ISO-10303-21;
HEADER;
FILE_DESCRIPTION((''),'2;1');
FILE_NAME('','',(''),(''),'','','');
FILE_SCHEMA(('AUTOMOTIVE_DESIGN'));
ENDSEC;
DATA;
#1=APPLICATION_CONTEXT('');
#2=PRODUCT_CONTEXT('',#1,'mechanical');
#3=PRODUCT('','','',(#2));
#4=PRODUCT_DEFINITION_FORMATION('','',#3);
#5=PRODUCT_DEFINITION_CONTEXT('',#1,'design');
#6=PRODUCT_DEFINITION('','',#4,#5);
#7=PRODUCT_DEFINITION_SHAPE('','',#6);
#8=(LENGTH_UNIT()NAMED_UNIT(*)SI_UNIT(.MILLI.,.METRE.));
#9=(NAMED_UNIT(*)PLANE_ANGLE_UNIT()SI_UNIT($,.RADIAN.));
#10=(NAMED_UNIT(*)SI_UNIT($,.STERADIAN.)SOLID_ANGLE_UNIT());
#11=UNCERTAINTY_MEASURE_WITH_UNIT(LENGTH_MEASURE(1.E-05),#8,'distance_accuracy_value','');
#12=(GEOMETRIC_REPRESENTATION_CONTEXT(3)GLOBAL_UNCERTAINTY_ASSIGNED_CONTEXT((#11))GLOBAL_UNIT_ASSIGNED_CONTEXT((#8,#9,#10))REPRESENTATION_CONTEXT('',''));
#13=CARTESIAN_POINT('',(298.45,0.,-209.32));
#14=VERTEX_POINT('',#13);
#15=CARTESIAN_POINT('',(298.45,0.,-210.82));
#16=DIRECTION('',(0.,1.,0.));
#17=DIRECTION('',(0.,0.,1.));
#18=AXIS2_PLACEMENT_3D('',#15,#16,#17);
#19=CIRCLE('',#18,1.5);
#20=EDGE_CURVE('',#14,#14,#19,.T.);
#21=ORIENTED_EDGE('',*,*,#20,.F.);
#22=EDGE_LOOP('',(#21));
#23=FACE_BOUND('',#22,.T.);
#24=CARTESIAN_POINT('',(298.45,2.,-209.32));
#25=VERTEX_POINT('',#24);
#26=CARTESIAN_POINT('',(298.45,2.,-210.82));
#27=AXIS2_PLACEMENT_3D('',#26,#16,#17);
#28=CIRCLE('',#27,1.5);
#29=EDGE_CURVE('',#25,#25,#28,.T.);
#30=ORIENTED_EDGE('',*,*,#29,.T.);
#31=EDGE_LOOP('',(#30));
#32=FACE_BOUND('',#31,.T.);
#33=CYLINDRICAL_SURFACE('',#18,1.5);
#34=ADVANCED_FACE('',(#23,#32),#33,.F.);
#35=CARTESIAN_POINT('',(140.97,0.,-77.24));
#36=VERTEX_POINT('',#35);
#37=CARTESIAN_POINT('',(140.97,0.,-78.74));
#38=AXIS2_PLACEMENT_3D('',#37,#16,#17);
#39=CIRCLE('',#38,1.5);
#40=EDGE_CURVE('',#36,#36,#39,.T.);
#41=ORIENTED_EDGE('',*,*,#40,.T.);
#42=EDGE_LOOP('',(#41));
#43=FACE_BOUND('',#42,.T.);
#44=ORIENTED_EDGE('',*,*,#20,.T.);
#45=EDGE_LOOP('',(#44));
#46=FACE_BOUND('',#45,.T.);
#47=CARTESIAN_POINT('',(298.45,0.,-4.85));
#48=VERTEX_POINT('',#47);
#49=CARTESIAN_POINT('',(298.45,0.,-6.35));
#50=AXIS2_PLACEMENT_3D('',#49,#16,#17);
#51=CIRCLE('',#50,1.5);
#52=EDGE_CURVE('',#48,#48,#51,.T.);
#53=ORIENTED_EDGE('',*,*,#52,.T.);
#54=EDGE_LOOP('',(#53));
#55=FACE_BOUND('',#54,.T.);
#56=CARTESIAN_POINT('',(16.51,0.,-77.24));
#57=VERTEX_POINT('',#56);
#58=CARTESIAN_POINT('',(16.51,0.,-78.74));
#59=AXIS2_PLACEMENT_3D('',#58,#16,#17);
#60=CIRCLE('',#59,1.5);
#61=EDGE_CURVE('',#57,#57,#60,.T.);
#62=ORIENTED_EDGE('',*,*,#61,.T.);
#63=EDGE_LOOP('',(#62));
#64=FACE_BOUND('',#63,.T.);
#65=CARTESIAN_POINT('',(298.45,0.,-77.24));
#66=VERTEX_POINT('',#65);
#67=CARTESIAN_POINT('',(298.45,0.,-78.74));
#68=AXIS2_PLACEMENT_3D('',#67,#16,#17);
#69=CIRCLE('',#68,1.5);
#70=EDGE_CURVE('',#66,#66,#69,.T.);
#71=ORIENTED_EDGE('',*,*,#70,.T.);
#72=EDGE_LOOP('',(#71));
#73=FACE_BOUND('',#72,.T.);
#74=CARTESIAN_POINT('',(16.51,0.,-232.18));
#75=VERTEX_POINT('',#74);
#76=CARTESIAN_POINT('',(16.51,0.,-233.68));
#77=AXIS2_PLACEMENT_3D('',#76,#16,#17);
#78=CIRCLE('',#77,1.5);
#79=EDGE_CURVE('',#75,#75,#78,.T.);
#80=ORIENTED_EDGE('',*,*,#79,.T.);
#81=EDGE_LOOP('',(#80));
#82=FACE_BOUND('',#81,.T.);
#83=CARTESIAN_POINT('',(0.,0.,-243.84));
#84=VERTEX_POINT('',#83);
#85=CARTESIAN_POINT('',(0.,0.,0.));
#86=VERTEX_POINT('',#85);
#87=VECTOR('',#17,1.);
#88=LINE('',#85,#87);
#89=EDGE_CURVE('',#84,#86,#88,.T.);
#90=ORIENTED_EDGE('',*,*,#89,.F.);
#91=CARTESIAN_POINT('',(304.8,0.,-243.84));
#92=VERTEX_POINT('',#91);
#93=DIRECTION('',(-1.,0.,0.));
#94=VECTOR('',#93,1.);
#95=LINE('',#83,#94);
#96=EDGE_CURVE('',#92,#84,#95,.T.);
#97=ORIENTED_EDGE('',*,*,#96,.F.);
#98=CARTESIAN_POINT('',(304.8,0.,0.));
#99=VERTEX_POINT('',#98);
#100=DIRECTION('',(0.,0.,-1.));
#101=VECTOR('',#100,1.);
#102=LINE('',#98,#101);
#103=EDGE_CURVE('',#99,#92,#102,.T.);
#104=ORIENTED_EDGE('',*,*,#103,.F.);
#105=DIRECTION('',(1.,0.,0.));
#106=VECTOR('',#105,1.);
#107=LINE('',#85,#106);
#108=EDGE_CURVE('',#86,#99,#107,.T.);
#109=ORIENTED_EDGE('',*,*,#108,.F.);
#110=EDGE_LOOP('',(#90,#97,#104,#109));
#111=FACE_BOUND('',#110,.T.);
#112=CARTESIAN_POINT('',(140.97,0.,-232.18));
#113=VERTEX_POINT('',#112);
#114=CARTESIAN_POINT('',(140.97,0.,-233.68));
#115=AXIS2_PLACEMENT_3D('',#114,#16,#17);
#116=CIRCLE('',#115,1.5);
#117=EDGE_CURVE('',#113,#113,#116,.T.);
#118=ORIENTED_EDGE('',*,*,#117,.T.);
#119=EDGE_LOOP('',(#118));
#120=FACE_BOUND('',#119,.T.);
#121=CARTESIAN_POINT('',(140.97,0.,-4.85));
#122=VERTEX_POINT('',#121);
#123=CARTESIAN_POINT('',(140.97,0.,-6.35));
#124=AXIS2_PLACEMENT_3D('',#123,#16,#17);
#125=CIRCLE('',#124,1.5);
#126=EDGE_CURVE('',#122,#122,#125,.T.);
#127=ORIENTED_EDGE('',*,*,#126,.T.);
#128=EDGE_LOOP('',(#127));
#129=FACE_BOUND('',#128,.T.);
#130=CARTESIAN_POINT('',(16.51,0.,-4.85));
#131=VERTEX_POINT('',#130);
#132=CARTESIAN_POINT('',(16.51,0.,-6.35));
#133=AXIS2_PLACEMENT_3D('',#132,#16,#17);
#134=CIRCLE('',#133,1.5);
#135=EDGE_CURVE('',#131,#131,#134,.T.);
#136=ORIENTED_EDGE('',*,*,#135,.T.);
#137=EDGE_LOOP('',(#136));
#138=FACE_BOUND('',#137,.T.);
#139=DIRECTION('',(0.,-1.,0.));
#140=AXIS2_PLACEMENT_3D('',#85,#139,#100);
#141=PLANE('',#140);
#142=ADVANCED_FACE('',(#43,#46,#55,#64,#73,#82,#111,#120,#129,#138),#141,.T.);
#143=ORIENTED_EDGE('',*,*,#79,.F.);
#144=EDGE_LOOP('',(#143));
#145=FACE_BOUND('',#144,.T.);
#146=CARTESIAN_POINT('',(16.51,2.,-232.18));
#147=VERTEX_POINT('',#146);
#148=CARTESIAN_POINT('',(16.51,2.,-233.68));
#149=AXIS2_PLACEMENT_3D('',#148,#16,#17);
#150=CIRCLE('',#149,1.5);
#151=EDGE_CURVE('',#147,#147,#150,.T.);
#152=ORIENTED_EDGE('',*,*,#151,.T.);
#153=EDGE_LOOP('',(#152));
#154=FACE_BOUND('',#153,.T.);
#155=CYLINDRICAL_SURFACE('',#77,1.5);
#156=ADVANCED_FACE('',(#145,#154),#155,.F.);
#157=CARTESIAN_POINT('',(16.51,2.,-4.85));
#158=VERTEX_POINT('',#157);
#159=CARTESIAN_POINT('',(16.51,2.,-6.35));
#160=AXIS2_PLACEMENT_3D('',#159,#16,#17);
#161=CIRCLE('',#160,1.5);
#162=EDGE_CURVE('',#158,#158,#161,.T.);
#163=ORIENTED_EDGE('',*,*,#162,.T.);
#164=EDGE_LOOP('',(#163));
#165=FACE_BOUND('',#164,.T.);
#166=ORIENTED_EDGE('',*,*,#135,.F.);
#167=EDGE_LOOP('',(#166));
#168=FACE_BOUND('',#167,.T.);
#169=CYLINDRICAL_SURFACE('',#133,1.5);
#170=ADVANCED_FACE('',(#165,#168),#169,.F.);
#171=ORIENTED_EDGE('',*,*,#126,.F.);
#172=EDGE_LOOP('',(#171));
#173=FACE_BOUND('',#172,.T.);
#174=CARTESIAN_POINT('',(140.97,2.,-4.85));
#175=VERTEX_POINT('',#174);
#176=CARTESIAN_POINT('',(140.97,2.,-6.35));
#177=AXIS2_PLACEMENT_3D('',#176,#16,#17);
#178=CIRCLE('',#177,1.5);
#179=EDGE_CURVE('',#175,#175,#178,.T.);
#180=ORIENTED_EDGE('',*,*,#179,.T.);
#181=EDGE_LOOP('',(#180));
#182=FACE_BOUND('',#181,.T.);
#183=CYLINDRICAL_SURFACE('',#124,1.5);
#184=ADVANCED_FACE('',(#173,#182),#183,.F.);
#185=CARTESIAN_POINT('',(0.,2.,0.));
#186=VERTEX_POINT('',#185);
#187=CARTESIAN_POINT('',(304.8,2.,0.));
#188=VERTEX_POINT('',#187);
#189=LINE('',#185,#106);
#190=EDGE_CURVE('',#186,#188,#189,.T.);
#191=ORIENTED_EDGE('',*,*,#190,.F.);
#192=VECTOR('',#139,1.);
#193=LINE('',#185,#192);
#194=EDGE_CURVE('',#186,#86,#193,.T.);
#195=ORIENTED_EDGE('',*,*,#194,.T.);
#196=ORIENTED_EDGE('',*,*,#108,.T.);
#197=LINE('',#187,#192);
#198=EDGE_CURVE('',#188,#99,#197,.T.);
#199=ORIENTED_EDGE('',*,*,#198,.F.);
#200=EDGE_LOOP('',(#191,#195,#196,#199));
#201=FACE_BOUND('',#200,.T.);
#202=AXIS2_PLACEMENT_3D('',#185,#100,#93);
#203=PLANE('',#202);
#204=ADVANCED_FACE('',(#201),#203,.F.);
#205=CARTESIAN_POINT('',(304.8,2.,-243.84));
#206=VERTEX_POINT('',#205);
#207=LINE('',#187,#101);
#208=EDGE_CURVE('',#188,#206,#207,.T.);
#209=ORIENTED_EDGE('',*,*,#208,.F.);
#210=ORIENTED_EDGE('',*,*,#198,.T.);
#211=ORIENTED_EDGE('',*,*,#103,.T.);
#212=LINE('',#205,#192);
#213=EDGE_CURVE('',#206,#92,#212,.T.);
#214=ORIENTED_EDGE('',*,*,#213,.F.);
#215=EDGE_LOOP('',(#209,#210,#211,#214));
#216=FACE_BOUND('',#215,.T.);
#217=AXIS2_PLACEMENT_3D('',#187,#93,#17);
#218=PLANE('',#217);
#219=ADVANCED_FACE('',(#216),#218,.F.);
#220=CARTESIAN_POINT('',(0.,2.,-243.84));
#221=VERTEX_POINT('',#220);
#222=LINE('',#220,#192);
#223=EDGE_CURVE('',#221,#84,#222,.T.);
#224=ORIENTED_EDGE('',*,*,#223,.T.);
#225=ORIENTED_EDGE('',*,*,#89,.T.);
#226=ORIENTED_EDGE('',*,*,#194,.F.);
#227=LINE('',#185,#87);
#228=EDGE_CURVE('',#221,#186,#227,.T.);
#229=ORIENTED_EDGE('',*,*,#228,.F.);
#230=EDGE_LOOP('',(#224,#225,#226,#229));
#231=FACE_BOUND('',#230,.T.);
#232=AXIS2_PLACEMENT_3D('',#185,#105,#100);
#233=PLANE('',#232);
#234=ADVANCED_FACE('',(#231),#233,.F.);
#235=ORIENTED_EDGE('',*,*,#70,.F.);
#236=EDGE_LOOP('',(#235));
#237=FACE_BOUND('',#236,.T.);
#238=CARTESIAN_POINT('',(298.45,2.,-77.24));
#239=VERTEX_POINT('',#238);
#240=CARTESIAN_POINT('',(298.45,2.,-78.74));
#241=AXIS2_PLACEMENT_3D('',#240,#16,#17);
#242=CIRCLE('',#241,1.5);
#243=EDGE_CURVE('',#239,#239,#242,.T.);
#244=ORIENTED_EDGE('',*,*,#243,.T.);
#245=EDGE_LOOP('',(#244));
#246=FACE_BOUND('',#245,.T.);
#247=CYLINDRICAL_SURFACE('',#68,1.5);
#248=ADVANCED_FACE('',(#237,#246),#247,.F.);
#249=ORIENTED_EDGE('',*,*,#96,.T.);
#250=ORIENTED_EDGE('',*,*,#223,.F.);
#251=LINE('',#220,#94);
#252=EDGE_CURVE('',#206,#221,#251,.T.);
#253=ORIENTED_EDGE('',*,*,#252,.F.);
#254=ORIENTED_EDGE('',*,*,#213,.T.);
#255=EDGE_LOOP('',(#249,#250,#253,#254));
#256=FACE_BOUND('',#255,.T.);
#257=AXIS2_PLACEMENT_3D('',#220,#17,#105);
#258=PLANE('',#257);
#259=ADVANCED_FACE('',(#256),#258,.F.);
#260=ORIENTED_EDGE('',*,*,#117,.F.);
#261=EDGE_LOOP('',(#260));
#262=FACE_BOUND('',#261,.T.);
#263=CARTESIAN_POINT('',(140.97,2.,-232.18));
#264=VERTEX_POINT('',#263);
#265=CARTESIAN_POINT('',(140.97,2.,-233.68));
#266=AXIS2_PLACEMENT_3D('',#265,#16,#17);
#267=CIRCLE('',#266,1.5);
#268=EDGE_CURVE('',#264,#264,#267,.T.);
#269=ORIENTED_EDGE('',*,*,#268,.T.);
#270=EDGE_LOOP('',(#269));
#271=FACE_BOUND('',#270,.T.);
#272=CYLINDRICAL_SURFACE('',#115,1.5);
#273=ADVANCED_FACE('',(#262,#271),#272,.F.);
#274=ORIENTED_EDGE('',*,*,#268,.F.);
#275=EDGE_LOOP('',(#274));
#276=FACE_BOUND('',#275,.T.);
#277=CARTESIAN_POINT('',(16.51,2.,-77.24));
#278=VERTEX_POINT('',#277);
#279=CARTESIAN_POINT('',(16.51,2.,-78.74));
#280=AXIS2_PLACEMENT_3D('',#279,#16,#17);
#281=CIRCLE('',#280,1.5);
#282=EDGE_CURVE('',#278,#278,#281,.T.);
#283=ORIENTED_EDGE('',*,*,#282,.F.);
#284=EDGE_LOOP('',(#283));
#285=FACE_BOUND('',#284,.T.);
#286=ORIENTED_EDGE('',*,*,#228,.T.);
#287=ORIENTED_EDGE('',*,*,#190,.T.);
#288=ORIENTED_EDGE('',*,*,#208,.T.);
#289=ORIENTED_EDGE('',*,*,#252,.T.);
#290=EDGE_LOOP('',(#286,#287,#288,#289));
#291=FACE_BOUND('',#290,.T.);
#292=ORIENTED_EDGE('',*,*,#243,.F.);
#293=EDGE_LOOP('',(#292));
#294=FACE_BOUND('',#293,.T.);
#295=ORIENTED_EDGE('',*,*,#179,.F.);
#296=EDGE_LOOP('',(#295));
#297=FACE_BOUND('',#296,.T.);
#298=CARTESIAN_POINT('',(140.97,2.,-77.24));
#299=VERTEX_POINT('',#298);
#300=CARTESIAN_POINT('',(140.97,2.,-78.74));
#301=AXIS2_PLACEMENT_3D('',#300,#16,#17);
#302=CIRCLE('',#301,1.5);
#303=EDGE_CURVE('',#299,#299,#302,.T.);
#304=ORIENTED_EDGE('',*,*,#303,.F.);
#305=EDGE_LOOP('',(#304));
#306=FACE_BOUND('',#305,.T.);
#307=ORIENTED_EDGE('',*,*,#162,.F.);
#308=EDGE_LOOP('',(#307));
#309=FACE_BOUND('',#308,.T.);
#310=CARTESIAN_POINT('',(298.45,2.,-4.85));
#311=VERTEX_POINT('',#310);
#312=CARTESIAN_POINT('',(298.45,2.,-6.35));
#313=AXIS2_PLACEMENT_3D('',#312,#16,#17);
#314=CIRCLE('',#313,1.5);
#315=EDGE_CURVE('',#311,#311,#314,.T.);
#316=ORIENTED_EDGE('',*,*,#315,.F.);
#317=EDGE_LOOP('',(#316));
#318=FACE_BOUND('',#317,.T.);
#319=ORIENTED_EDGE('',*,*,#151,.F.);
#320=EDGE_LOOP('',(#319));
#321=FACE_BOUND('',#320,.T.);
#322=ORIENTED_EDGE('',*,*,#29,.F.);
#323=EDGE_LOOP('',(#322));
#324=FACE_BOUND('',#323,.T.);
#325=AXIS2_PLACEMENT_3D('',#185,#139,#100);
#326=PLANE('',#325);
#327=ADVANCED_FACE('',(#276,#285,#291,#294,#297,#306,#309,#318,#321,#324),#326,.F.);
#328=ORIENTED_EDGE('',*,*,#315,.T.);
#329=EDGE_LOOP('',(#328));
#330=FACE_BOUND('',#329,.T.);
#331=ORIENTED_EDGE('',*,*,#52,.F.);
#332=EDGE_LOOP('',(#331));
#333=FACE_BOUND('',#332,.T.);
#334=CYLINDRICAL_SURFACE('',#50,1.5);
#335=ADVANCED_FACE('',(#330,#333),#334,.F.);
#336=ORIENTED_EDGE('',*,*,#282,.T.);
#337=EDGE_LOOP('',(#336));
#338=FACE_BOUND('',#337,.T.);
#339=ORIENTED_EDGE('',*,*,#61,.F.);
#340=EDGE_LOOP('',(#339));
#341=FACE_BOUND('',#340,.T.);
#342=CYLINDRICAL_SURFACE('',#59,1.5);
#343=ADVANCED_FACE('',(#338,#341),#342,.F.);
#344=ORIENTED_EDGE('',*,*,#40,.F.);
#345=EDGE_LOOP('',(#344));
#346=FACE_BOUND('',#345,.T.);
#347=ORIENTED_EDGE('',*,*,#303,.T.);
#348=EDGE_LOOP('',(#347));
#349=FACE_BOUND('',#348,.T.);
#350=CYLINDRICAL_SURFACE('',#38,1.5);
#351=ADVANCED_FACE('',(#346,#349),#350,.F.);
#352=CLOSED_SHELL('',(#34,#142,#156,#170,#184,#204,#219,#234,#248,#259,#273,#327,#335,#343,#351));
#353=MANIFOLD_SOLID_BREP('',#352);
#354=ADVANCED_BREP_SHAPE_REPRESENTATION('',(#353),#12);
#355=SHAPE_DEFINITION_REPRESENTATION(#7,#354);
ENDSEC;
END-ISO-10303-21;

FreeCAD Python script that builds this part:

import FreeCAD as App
import Part
import Sketcher

doc = App.newDocument("Part")
body = doc.addObject("PartDesign::Body", "Body")

sketch1 = body.newObject("Sketcher::SketchObject", "Sketch")
sketch1.AttachmentSupport = (doc.getObject("XZ_Plane"), [""])
sketch1.MapMode = "FlatFace"
sketch1.addGeometry([
    Part.LineSegment(App.Vector(0, -243.84, 0), App.Vector(0, 0, 0)),
    Part.LineSegment(App.Vector(0, 0, 0), App.Vector(304.8, 0, 0)),
    Part.LineSegment(App.Vector(304.8, 0, 0), App.Vector(304.8, -243.84, 0)),
    Part.LineSegment(App.Vector(304.8, -243.84, 0), App.Vector(0, -243.84, 0)),
], False)
sketch1.addConstraint([
    Sketcher.Constraint("Coincident", 0, 2, 1, 1),
    Sketcher.Constraint("Coincident", 1, 2, 2, 1),
    Sketcher.Constraint("Coincident", 2, 2, 3, 1),
    Sketcher.Constraint("Coincident", 3, 2, 0, 1),
    Sketcher.Constraint("Vertical", 0),
    Sketcher.Constraint("Horizontal", 1),
    Sketcher.Constraint("Vertical", 2),
    Sketcher.Constraint("Horizontal", 3),
    Sketcher.Constraint("Coincident", 0, 2, -1, 1),
    Sketcher.Constraint("DistanceX", 1, 1, 1, 2, 304.8),
    Sketcher.Constraint("DistanceY", 0, 1, 0, 2, 243.84),
])
pad1 = body.newObject("PartDesign::Pad", "Pad")
pad1.Profile = sketch1
pad1.Length = 2
pad1.Reversed = True

sketch2 = body.newObject("Sketcher::SketchObject", "Sketch001")
sketch2.AttachmentSupport = (doc.getObject("XZ_Plane"), [""])
sketch2.MapMode = "FlatFace"
sketch2.AttachmentOffset = App.Placement(App.Vector(0, 0, -2), App.Rotation())
sketch2.addGeometry([
    Part.Circle(App.Vector(16.51, -6.35, 0), App.Vector(0, 0, 1), 1.5),
    Part.Circle(App.Vector(140.97, -6.35, 0), App.Vector(0, 0, 1), 1.5),
    Part.Circle(App.Vector(298.45, -6.35, 0), App.Vector(0, 0, 1), 1.5),
    Part.Circle(App.Vector(298.45, -78.74, 0), App.Vector(0, 0, 1), 1.5),
    Part.Circle(App.Vector(140.97, -78.74, 0), App.Vector(0, 0, 1), 1.5),
    Part.Circle(App.Vector(16.51, -78.74, 0), App.Vector(0, 0, 1), 1.5),
    Part.Circle(App.Vector(16.51, -233.68, 0), App.Vector(0, 0, 1), 1.5),
    Part.Circle(App.Vector(140.97, -233.68, 0), App.Vector(0, 0, 1), 1.5),
    Part.Circle(App.Vector(298.45, -210.82, 0), App.Vector(0, 0, 1), 1.5),
], False)
sketch2.addConstraint([
    Sketcher.Constraint("Equal", 0, 1),
    Sketcher.Constraint("Equal", 1, 2),
    Sketcher.Constraint("Equal", 2, 3),
    Sketcher.Constraint("Equal", 3, 4),
    Sketcher.Constraint("Equal", 4, 5),
    Sketcher.Constraint("Equal", 5, 6),
    Sketcher.Constraint("Equal", 6, 7),
    Sketcher.Constraint("Equal", 7, 8),
    Sketcher.Constraint("Horizontal", 0, 3, 1, 3),
    Sketcher.Constraint("Horizontal", 1, 3, 2, 3),
    Sketcher.Constraint("Horizontal", 3, 3, 4, 3),
    Sketcher.Constraint("Horizontal", 4, 3, 5, 3),
    Sketcher.Constraint("Horizontal", 6, 3, 7, 3),
    Sketcher.Constraint("Vertical", 2, 3, 3, 3),
    Sketcher.Constraint("Vertical", 1, 3, 4, 3),
    Sketcher.Constraint("Vertical", 0, 3, 5, 3),
    Sketcher.Constraint("Vertical", 5, 3, 6, 3),
    Sketcher.Constraint("Vertical", 4, 3, 7, 3),
    Sketcher.Constraint("Vertical", 3, 3, 8, 3),
    Sketcher.Constraint("Diameter", 0, 3.0),
    Sketcher.Constraint("DistanceX", -1, 1, 0, 3, 16.51),
    Sketcher.Constraint("DistanceY", 0, 3, -1, 1, 6.35),
    Sketcher.Constraint("DistanceX", -1, 1, 1, 3, 140.97),
    Sketcher.Constraint("DistanceX", -1, 1, 2, 3, 298.45),
    Sketcher.Constraint("DistanceY", 3, 3, -1, 1, 78.74),
    Sketcher.Constraint("DistanceY", 6, 3, -1, 1, 233.68),
    Sketcher.Constraint("DistanceY", 8, 3, -1, 1, 210.82),
])
pocket1 = body.newObject("PartDesign::Pocket", "Pocket")
pocket1.Profile = sketch2
pocket1.Type = "ThroughAll"
pocket1.Reversed = True

doc.recompute()
